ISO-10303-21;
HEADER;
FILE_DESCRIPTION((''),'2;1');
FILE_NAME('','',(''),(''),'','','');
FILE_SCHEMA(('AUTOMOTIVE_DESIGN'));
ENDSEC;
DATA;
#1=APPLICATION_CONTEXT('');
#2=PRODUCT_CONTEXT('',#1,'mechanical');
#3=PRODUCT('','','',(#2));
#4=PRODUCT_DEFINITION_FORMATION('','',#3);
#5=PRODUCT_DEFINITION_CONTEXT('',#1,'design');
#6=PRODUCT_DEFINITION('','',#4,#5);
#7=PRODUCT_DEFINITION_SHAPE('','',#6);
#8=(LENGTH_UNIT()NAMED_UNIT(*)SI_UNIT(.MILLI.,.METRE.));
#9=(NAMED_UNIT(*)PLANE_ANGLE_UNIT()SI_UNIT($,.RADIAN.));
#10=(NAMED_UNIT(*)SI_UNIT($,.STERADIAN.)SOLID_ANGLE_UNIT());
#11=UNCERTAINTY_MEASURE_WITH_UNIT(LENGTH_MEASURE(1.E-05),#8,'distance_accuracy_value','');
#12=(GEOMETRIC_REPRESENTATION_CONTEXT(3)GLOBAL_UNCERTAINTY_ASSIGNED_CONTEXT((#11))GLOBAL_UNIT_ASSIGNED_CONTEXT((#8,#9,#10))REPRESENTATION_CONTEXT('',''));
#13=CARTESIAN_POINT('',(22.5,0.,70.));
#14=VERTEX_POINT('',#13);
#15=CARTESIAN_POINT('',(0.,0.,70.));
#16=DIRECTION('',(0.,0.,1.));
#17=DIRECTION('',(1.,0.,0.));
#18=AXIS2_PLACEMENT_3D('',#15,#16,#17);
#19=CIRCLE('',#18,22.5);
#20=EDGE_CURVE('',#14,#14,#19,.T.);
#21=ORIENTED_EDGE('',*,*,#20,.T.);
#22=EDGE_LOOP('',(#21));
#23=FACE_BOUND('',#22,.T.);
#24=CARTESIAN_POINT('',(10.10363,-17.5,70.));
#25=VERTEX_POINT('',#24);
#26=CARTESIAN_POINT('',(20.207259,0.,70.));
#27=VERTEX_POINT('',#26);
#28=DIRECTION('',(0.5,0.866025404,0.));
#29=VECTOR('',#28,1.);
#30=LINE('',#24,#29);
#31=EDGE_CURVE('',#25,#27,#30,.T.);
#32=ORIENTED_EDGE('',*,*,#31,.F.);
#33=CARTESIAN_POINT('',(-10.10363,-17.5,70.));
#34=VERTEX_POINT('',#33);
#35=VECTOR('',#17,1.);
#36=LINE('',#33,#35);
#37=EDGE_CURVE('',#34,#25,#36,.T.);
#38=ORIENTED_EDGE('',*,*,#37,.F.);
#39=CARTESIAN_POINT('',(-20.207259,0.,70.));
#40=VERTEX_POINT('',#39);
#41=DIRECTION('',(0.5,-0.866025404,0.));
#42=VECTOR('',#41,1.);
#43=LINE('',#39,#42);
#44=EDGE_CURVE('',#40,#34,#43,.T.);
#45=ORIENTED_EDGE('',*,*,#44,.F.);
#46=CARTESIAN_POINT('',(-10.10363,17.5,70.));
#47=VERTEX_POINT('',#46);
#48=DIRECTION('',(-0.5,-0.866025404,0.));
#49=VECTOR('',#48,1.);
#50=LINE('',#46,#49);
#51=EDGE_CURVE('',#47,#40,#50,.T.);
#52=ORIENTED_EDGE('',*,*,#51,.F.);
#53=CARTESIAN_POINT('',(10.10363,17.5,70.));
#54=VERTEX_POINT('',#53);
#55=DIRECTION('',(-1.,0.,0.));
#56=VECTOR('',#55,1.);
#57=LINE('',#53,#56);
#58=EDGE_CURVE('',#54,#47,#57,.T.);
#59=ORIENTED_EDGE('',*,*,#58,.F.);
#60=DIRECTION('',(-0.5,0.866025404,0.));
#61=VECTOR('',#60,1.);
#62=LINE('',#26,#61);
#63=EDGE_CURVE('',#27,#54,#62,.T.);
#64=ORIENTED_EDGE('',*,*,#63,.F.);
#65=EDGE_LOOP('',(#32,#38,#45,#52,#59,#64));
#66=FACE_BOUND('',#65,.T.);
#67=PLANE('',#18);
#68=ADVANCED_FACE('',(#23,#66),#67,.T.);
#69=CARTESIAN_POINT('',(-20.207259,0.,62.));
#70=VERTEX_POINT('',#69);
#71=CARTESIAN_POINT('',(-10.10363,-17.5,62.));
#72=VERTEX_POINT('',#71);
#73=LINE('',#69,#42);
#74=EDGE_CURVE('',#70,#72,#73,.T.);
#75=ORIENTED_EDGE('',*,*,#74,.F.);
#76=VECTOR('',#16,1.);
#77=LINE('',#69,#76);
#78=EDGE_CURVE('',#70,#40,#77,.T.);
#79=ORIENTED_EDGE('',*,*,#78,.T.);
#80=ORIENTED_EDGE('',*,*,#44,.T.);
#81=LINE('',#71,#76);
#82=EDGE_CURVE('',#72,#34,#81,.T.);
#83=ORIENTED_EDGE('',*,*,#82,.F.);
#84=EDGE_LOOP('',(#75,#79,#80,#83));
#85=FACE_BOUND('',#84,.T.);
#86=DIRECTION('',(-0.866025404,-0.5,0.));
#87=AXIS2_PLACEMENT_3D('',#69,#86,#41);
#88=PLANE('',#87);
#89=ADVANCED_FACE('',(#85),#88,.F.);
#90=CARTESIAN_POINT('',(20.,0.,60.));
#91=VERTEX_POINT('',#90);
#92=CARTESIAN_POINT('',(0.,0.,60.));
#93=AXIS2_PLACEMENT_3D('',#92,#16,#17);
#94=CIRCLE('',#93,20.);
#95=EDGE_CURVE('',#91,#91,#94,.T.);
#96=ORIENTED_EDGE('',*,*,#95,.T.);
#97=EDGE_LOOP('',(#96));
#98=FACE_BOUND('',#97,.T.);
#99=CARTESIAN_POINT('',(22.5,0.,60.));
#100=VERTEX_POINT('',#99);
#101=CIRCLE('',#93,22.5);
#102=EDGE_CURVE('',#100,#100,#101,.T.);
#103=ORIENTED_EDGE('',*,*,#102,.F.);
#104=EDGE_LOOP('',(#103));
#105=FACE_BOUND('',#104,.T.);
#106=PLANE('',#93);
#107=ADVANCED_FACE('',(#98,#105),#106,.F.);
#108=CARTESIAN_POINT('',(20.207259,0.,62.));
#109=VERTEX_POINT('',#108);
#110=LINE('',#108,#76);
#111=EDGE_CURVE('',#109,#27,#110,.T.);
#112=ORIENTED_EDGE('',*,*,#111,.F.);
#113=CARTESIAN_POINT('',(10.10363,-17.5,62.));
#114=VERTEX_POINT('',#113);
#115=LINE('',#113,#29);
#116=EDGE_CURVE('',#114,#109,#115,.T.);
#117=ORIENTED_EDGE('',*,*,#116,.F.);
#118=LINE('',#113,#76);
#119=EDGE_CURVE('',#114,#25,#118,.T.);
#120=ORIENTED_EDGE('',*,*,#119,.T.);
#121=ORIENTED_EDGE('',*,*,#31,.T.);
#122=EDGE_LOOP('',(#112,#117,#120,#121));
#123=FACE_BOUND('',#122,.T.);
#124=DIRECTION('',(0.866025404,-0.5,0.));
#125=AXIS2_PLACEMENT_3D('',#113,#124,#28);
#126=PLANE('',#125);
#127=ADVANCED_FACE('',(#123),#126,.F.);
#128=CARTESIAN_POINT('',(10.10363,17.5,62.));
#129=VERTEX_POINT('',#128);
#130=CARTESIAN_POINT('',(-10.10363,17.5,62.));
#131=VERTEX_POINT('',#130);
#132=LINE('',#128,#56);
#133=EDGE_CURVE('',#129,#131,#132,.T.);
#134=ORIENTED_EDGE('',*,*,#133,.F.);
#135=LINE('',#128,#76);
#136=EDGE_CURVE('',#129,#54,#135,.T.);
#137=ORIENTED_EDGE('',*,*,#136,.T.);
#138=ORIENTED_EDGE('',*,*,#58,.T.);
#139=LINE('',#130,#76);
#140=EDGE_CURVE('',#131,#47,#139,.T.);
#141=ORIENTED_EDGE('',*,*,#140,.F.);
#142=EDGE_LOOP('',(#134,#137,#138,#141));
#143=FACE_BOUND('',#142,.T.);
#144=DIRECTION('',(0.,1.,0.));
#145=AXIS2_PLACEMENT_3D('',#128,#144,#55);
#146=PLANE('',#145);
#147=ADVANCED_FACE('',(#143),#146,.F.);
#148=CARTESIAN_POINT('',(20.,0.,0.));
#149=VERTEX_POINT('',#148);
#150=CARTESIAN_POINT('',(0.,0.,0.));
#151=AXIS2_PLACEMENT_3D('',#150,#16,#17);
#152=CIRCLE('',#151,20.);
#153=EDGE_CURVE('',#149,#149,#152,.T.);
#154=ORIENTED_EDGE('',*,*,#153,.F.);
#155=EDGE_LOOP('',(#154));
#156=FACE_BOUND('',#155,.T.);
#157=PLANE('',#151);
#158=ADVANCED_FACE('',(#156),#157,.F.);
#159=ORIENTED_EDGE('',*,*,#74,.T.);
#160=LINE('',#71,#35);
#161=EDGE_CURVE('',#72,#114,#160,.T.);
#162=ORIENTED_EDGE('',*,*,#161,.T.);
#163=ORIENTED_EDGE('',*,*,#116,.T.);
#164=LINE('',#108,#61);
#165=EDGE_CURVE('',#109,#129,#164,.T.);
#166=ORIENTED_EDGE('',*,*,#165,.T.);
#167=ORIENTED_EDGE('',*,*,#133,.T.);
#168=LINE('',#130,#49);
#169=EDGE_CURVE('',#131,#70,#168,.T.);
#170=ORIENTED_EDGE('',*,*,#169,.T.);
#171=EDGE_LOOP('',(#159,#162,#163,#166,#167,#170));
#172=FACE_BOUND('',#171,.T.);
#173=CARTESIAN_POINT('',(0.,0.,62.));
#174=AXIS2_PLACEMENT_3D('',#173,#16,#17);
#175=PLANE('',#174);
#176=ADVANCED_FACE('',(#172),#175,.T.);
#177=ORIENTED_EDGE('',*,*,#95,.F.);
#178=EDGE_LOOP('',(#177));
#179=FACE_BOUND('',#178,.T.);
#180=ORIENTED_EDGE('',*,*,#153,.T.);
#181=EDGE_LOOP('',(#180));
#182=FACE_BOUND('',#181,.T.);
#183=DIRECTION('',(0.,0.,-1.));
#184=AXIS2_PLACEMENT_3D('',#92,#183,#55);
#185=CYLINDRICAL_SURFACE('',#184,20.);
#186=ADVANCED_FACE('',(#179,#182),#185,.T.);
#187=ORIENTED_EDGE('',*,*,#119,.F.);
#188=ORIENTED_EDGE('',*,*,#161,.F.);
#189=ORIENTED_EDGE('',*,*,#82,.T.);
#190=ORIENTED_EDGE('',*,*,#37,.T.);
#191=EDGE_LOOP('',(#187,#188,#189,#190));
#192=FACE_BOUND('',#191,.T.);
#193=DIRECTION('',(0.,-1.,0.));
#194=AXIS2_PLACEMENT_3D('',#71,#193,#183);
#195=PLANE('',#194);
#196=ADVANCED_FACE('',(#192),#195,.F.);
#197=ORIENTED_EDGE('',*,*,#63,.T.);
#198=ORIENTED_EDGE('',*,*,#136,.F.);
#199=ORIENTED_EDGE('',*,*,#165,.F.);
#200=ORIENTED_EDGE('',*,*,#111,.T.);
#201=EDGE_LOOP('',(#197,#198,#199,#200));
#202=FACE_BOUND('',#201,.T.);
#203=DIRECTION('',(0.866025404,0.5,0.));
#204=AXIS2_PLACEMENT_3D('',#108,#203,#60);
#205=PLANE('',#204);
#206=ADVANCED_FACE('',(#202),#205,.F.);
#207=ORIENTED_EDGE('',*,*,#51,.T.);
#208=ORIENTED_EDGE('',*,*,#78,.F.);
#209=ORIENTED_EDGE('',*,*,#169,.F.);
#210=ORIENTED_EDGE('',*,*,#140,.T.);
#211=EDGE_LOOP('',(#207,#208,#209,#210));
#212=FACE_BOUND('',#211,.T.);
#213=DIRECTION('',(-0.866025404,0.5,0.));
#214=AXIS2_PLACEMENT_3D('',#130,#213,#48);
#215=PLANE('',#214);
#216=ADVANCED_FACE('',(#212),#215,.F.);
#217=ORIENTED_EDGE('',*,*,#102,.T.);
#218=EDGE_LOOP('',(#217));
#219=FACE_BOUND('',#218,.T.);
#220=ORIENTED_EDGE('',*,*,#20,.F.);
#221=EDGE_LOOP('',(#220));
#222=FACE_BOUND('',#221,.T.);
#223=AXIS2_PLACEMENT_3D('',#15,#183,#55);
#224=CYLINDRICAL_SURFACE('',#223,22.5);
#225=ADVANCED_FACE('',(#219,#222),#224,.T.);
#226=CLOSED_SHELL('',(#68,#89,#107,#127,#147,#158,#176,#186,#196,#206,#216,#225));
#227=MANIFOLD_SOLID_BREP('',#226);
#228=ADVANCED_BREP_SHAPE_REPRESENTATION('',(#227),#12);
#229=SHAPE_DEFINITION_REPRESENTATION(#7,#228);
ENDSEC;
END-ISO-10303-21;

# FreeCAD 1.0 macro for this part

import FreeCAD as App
import Part
import Sketcher
from FreeCAD import Vector
Q = App.Units.Quantity


def add_polygon(sketch, points):
    """Adds a closed chain of lines whose ends are joined by coincident constraints."""
    first, n = sketch.GeometryCount, len(points)
    for a, b in zip(points, points[1:] + points[:1]):
        sketch.addGeometry(Part.LineSegment(App.Vector(*a, 0), App.Vector(*b, 0)), False)
    for i in range(n):
        sketch.addConstraint(Sketcher.Constraint("Coincident", first + i, 2, first + (i + 1) % n, 1))

doc = App.newDocument("Part")
body = doc.addObject("PartDesign::Body", "Body")

sketch1 = body.newObject("Sketcher::SketchObject", "Sketch")
sketch1.AttachmentSupport = (doc.getObject("XY_Plane"), [""])
sketch1.MapMode = "FlatFace"
sketch1.addGeometry(Part.Circle(Vector(0, 0, 0), Vector(0, 0, 1), 20), False)
sketch1.addConstraint(Sketcher.Constraint("Coincident", 0, 3, -1, 1))
sketch1.addConstraint(Sketcher.Constraint("Diameter", 0, 40.0))
pad1 = body.newObject("PartDesign::Pad", "Pad")
pad1.Profile = sketch1
pad1.Length = 60

sketch2 = body.newObject("Sketcher::SketchObject", "Sketch001")
sketch2.AttachmentSupport = (doc.getObject("XY_Plane"), [""])
sketch2.MapMode = "FlatFace"
sketch2.AttachmentOffset = App.Placement(Vector(0, 0, 60), App.Rotation())
sketch2.addGeometry(Part.Circle(Vector(0, 0, 0), Vector(0, 0, 1), 22.5), False)
sketch2.addConstraint(Sketcher.Constraint("Coincident", 0, 3, -1, 1))
sketch2.addConstraint(Sketcher.Constraint("Diameter", 0, 45.0))
pad2 = body.newObject("PartDesign::Pad", "Pad001")
pad2.Profile = sketch2
pad2.Length = 10

sketch3 = body.newObject("Sketcher::SketchObject", "Sketch002")
sketch3.AttachmentSupport = (doc.getObject("XY_Plane"), [""])
sketch3.MapMode = "FlatFace"
sketch3.AttachmentOffset = App.Placement(Vector(0, 0, 70), App.Rotation())
add_polygon(sketch3, [(-20.207259, 0), (-10.10363, -17.5), (10.10363, -17.5), (20.207259, 0), (10.10363, 17.5), (-10.10363, 17.5)])
sketch3.addConstraint(Sketcher.Constraint("Horizontal", 1))
sketch3.addConstraint(Sketcher.Constraint("Horizontal", 4))
sketch3.addConstraint(Sketcher.Constraint("Symmetric", 0, 2, 3, 2, -1, 1))
sketch3.addConstraint(Sketcher.Constraint("Symmetric", 2, 2, 5, 2, -1, 1))
sketch3.addConstraint(Sketcher.Constraint("PointOnObject", 2, 2, -1))
sketch3.addConstraint(Sketcher.Constraint("Parallel", 2, 5))
sketch3.addConstraint(Sketcher.Constraint("Vertical", 1, 2, 3, 2))
sketch3.addConstraint(Sketcher.Constraint("Angle", 0, Q("-60 deg")))
sketch3.addConstraint(Sketcher.Constraint("DistanceY", 1, 2, 3, 2, 35.0))
sketch3.addConstraint(Sketcher.Constraint("DistanceX", 1, 1, 1, 2, 20.207259))
pocket1 = body.newObject("PartDesign::Pocket", "Pocket")
pocket1.Profile = sketch3
pocket1.Length = 8

doc.recompute()
